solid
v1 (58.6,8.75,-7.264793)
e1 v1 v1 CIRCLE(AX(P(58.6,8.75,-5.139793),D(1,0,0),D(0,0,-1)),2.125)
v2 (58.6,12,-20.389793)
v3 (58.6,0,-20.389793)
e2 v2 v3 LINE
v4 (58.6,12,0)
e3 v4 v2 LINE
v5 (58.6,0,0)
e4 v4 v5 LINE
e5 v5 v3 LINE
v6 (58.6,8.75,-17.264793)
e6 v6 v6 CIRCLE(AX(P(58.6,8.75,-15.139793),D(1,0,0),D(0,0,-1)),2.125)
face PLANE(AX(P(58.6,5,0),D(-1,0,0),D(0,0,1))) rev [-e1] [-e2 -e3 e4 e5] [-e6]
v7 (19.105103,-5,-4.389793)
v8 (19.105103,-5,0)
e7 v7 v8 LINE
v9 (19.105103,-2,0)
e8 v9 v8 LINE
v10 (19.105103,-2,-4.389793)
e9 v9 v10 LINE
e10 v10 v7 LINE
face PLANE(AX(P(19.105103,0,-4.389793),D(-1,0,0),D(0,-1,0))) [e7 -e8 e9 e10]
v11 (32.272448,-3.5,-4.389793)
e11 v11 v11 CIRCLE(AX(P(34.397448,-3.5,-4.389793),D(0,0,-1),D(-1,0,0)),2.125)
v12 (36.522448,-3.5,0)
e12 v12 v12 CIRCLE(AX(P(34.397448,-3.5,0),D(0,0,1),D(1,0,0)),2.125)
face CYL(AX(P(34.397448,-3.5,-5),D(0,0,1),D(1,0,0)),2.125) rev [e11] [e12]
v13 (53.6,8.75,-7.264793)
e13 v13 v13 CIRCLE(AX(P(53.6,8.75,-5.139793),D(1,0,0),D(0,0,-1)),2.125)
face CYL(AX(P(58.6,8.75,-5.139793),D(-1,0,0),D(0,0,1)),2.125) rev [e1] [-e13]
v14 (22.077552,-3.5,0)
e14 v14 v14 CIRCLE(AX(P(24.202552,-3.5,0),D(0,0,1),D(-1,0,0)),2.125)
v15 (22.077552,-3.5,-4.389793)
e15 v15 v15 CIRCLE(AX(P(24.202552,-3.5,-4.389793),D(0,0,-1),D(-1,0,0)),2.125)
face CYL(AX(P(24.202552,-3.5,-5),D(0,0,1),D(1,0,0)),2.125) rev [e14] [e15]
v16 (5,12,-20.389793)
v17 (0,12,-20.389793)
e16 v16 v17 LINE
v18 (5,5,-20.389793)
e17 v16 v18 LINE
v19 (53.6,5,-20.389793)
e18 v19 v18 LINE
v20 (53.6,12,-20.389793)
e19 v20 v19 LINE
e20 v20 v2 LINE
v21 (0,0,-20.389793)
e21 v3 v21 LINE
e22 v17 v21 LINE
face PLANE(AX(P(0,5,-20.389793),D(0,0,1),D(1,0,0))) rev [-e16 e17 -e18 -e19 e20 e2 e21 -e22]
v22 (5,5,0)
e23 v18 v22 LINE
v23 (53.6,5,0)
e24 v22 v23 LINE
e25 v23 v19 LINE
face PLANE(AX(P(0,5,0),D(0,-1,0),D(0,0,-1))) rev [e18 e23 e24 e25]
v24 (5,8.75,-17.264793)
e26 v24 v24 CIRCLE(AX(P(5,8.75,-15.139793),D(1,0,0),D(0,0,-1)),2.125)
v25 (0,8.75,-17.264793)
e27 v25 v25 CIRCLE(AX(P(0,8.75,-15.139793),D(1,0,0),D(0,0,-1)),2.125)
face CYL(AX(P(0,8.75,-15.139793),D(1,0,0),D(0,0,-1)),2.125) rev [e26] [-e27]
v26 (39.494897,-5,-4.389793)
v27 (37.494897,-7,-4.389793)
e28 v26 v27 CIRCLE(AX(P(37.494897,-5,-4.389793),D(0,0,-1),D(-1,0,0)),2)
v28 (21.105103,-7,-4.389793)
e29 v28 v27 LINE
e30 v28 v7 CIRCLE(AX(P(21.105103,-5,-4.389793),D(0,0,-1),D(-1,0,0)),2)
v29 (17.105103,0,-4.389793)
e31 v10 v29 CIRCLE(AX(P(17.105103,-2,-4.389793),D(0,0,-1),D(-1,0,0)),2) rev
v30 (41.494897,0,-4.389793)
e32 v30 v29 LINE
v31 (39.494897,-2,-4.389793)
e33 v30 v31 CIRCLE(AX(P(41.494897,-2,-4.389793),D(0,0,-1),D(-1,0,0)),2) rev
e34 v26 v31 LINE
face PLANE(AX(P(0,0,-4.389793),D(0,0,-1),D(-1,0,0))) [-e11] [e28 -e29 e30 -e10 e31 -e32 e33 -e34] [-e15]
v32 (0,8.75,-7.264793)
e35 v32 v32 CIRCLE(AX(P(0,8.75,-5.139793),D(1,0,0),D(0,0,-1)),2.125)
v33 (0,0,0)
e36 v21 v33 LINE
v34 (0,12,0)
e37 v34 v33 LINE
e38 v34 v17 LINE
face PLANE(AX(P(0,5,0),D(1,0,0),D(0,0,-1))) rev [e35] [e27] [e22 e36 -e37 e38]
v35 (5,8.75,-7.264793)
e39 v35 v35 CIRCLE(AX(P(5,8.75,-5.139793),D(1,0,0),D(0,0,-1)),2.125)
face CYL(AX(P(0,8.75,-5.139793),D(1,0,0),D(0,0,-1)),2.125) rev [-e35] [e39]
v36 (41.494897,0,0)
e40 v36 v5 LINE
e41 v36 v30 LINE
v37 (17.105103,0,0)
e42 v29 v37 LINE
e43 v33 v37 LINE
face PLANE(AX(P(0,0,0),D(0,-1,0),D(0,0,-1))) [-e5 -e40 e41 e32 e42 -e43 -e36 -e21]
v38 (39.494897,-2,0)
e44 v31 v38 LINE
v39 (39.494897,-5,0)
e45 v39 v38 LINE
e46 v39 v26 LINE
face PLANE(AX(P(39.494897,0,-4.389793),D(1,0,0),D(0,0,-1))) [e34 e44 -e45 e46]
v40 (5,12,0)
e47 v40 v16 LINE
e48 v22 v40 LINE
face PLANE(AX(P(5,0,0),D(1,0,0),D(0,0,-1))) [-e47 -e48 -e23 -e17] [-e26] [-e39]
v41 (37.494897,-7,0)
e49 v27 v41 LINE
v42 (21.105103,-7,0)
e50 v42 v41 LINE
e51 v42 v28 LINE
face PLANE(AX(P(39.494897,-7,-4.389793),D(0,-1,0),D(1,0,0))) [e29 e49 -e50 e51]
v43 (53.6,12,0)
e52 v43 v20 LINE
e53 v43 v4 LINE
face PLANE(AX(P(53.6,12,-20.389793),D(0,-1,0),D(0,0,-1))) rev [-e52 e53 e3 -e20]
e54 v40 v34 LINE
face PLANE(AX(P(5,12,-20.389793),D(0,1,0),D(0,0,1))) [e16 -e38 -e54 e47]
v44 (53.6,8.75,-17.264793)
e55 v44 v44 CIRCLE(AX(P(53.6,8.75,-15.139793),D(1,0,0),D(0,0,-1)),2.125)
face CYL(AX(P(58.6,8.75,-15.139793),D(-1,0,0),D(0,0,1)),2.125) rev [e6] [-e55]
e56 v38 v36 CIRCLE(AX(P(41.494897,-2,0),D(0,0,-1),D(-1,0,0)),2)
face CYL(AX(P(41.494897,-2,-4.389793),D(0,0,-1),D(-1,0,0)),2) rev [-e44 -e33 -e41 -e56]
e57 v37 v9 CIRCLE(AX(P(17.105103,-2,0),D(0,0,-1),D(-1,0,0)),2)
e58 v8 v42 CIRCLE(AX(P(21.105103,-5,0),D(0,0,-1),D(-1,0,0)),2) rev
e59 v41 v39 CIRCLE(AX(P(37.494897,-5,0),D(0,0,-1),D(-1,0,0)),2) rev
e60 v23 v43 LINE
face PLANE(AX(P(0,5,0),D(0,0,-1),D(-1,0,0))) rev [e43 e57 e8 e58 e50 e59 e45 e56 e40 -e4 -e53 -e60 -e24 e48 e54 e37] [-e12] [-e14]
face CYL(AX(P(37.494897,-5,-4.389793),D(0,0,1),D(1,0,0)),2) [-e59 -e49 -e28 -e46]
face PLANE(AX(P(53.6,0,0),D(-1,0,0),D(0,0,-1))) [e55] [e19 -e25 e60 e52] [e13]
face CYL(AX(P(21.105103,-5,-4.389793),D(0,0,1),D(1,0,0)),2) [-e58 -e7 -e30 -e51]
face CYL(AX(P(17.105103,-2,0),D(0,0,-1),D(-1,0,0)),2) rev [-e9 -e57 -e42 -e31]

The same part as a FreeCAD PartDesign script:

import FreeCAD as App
import Part
import Sketcher
from FreeCAD import Vector


def edges_at(feature, points):
    """Names of the edges that pass closest to the given points."""
    edges = feature.Shape.Edges
    near = lambda p: min(range(len(edges)), key=lambda i: edges[i].distToShape(Part.Vertex(*p))[0])
    return sorted({f"Edge{near(p) + 1}" for p in points})

doc = App.newDocument("Part")
body = doc.addObject("PartDesign::Body", "Body")

# Sketch on XZ plane
sketch1 = body.newObject("Sketcher::SketchObject", "Sketch")
sketch1.AttachmentSupport = (doc.getObject("XZ_Plane"), [""])
sketch1.MapMode = "FlatFace"
sketch1.addGeometry([
    Part.LineSegment(Vector(0, -20, 0), Vector(0, 0, 0)),
    Part.LineSegment(Vector(0, 0, 0), Vector(59, 0, 0)),
    Part.LineSegment(Vector(59, 0, 0), Vector(59, -20, 0)),
    Part.LineSegment(Vector(59, -20, 0), Vector(0, -20, 0)),
], False)
sketch1.addConstraint([
    Sketcher.Constraint("Coincident", 0, 2, 1, 1),
    Sketcher.Constraint("Coincident", 1, 2, 2, 1),
    Sketcher.Constraint("Coincident", 2, 2, 3, 1),
    Sketcher.Constraint("Coincident", 3, 2, 0, 1),
    Sketcher.Constraint("Vertical", 0),
    Sketcher.Constraint("Horizontal", 1),
    Sketcher.Constraint("Vertical", 2),
    Sketcher.Constraint("Horizontal", 3),
    Sketcher.Constraint("Coincident", 0, 2, -1, 1),
    Sketcher.Constraint("DistanceX", 1, 1, 1, 2, 58.6),
    Sketcher.Constraint("DistanceY", 0, 1, 0, 2, 20.389793),
])
pad1 = body.newObject("PartDesign::Pad", "Pad")
pad1.Profile = sketch1
pad1.Length = 5
pad1.Reversed = True

# Sketch on YZ plane
sketch2 = body.newObject("Sketcher::SketchObject", "Sketch001")
sketch2.AttachmentSupport = (doc.getObject("YZ_Plane"), [""])
sketch2.MapMode = "FlatFace"
sketch2.addGeometry([
    Part.LineSegment(Vector(12, -20, 0), Vector(0, -20, 0)),
    Part.LineSegment(Vector(0, -20, 0), Vector(0, 0, 0)),
    Part.LineSegment(Vector(0, 0, 0), Vector(12, 0, 0)),
    Part.LineSegment(Vector(12, 0, 0), Vector(12, -20, 0)),
], False)
sketch2.addConstraint([
    Sketcher.Constraint("Coincident", 0, 2, 1, 1),
    Sketcher.Constraint("Coincident", 1, 2, 2, 1),
    Sketcher.Constraint("Coincident", 2, 2, 3, 1),
    Sketcher.Constraint("Coincident", 3, 2, 0, 1),
    Sketcher.Constraint("Horizontal", 0),
    Sketcher.Constraint("Vertical", 1),
    Sketcher.Constraint("Horizontal", 2),
    Sketcher.Constraint("Vertical", 3),
    Sketcher.Constraint("Coincident", 1, 2, -1, 1),
    Sketcher.Constraint("DistanceX", 0, 2, 0, 1, 12.0),
    Sketcher.Constraint("DistanceY", 1, 1, 1, 2, 20.389793),
])
pad2 = body.newObject("PartDesign::Pad", "Pad001")
pad2.Profile = sketch2
pad2.Length = 5

# Sketch on YZ plane
sketch3 = body.newObject("Sketcher::SketchObject", "Sketch002")
sketch3.AttachmentSupport = (doc.getObject("YZ_Plane"), [""])
sketch3.MapMode = "FlatFace"
sketch3.AttachmentOffset = App.Placement(Vector(0, 0, 5), App.Rotation())
sketch3.addGeometry([
    Part.Circle(Vector(8.8, -15.1, 0), Vector(0, 0, 1), 2.1),
    Part.Circle(Vector(8.8, -5.1, 0), Vector(0, 0, 1), 2.1),
], False)
sketch3.addConstraint([
    Sketcher.Constraint("Equal", 0, 1),
    Sketcher.Constraint("Vertical", 0, 3, 1, 3),
    Sketcher.Constraint("Diameter", 0, 4.25),
    Sketcher.Constraint("DistanceY", 0, 3, 1, 3, 10.0),
    Sketcher.Constraint("DistanceX", -1, 1, 0, 3, 8.75),
    Sketcher.Constraint("DistanceY", 0, 3, -1, 1, 15.139793),
])
pocket1 = body.newObject("PartDesign::Pocket", "Pocket")
pocket1.Profile = sketch3
pocket1.Length = 5
doc.recompute()

datumplane = body.newObject("PartDesign::Plane", "DatumPlane")
datumplane.AttachmentSupport = (doc.getObject("YZ_Plane"), [""])
datumplane.MapMode = "FlatFace"
datumplane.AttachmentOffset = App.Placement(Vector(0, 0, 29.3), App.Rotation())
mirrored = body.newObject("PartDesign::Mirrored", "Mirrored")
mirrored.Originals = [pad2, pocket1]
mirrored.MirrorPlane = (datumplane, [""])
body.Tip = mirrored

# Sketch on XY plane
sketch4 = body.newObject("Sketcher::SketchObject", "Sketch003")
sketch4.AttachmentSupport = (doc.getObject("XY_Plane"), [""])
sketch4.MapMode = "FlatFace"
sketch4.addGeometry([
    Part.LineSegment(Vector(19, 0, 0), Vector(19, -7, 0)),
    Part.LineSegment(Vector(19, -7, 0), Vector(39, -7, 0)),
    Part.LineSegment(Vector(39, -7, 0), Vector(39, 0, 0)),
    Part.LineSegment(Vector(39, 0, 0), Vector(19, 0, 0)),
], False)
sketch4.addConstraint([
    Sketcher.Constraint("Coincident", 0, 2, 1, 1),
    Sketcher.Constraint("Coincident", 1, 2, 2, 1),
    Sketcher.Constraint("Coincident", 2, 2, 3, 1),
    Sketcher.Constraint("Coincident", 3, 2, 0, 1),
    Sketcher.Constraint("Vertical", 0),
    Sketcher.Constraint("Horizontal", 1),
    Sketcher.Constraint("Vertical", 2),
    Sketcher.Constraint("Horizontal", 3),
    Sketcher.Constraint("PointOnObject", 2, 2, -1),
    Sketcher.Constraint("DistanceY", 0, 2, 0, 1, 7.0),
    Sketcher.Constraint("DistanceX", 1, 1, 1, 2, 20.389793),
    Sketcher.Constraint("DistanceX", -1, 1, 0, 2, 19.105103),
])
pad3 = body.newObject("PartDesign::Pad", "Pad002")
pad3.Profile = sketch4
pad3.Length = 4.389793
pad3.Reversed = True

# Sketch on XY plane
sketch5 = body.newObject("Sketcher::SketchObject", "Sketch004")
sketch5.AttachmentSupport = (doc.getObject("XY_Plane"), [""])
sketch5.MapMode = "FlatFace"
sketch5.addGeometry([
    Part.Circle(Vector(34.4, -3.5, 0), Vector(0, 0, 1), 2.1),
    Part.Circle(Vector(24.2, -3.5, 0), Vector(0, 0, 1), 2.1),
], False)
sketch5.addConstraint([
    Sketcher.Constraint("Equal", 0, 1),
    Sketcher.Constraint("Horizontal", 0, 3, 1, 3),
    Sketcher.Constraint("Diameter", 0, 4.25),
    Sketcher.Constraint("DistanceY", 0, 3, -1, 1, 3.5),
    Sketcher.Constraint("DistanceX", -1, 1, 0, 3, 34.397448),
    Sketcher.Constraint("DistanceX", -1, 1, 1, 3, 24.202552),
])
pocket2 = body.newObject("PartDesign::Pocket", "Pocket001")
pocket2.Profile = sketch5
pocket2.Length = 5
doc.recompute()

fillet = body.newObject("PartDesign::Fillet", "Fillet")
fillet.Base = (pocket2, edges_at(pocket2, [
    (39.495, 0, -2.195),
    (39.495, -7, -2.195),
    (19.105, -7, -2.195),
    (19.105, 0, -2.195),
]))
fillet.Radius = 2

doc.recompute()
